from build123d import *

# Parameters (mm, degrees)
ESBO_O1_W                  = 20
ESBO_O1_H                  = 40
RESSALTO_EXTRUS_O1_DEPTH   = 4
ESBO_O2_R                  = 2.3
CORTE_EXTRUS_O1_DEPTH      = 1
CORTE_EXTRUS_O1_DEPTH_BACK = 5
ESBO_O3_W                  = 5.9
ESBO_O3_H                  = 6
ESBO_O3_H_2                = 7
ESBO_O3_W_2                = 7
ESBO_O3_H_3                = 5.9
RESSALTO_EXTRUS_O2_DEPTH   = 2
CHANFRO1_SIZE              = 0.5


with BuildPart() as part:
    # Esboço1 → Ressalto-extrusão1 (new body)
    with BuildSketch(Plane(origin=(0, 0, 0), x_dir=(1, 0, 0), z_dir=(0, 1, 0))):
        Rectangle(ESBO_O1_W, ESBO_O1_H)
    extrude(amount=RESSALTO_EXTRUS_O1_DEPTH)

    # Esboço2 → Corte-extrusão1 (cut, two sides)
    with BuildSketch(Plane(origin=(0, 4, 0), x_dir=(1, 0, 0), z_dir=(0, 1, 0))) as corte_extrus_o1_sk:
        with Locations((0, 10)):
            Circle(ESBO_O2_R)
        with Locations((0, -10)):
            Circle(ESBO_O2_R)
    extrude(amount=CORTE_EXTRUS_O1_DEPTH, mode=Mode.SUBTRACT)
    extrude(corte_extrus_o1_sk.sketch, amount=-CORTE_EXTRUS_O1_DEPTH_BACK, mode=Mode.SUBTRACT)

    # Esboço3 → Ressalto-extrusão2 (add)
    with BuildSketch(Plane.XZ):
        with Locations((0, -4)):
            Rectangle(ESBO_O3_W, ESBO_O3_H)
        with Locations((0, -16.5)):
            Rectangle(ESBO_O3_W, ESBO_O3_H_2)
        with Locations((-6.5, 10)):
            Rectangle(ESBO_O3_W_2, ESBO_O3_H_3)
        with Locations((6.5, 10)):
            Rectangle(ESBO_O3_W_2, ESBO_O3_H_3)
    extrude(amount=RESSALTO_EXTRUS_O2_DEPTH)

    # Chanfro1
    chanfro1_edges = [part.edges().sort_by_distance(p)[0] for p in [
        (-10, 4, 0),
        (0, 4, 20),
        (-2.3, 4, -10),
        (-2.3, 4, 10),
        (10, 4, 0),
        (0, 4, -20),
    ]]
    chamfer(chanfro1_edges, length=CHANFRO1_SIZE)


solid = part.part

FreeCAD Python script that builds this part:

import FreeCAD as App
import Part
import Sketcher
Q = App.Units.Quantity


def edges_at(feature, points):
    """Names of the edges that pass closest to the given points."""
    edges = feature.Shape.Edges
    near = lambda p: min(range(len(edges)), key=lambda i: edges[i].distToShape(Part.Vertex(*p))[0])
    return sorted({f"Edge{near(p) + 1}" for p in points})


def add_polygon(sketch, points):
    """Adds a closed chain of lines whose ends are joined by coincident constraints."""
    first, n = sketch.GeometryCount, len(points)
    for a, b in zip(points, points[1:] + points[:1]):
        sketch.addGeometry(Part.LineSegment(App.Vector(*a, 0), App.Vector(*b, 0)), False)
    for i in range(n):
        sketch.addConstraint(Sketcher.Constraint("Coincident", first + i, 2, first + (i + 1) % n, 1))

doc = App.newDocument("Part")
body = doc.addObject("PartDesign::Body", "Body")

# Sketch on XZ plane
sketch1 = body.newObject("Sketcher::SketchObject", "Sketch")
sketch1.AttachmentSupport = (doc.getObject("XZ_Plane"), [""])
sketch1.MapMode = "FlatFace"
add_polygon(sketch1, [(-10, -20), (-10, 20), (10, 20), (10, -20)])  # lines 0-3
sketch1.addConstraint([
    Sketcher.Constraint("Vertical", 0),
    Sketcher.Constraint("Horizontal", 1),
    Sketcher.Constraint("Vertical", 2),
    Sketcher.Constraint("Horizontal", 3),
    Sketcher.Constraint("Symmetric", 0, 2, 2, 2, -1, 1),
    Sketcher.Constraint("DistanceX", 1, 1, 1, 2, Q("20 mm")),
    Sketcher.Constraint("DistanceY", 0, 1, 0, 2, Q("40 mm")),
])
pad1 = body.newObject("PartDesign::Pad", "Pad")
pad1.Profile = sketch1
pad1.Length = 4
pad1.Reversed = True

# Sketch on XZ plane
sketch2 = body.newObject("Sketcher::SketchObject", "Sketch001")
sketch2.AttachmentSupport = (doc.getObject("XZ_Plane"), [""])
sketch2.MapMode = "FlatFace"
sketch2.AttachmentOffset = App.Placement(App.Vector(0, 0, -4), App.Rotation())
sketch2.addGeometry([
    Part.Circle(App.Vector(0, -10, 0), App.Vector(0, 0, 1), 2.3),
    Part.Circle(App.Vector(0, 10, 0), App.Vector(0, 0, 1), 2.3),
], False)
sketch2.addConstraint([
    Sketcher.Constraint("Equal", 0, 1),
    Sketcher.Constraint("Symmetric", 0, 3, 1, 3, -1, 1),
    Sketcher.Constraint("PointOnObject", 0, 3, -2),
    Sketcher.Constraint("Diameter", 0, Q("4.6 mm")),
    Sketcher.Constraint("DistanceY", 0, 3, -1, 1, Q("10 mm")),
])
pocket1 = body.newObject("PartDesign::Pocket", "Pocket")
pocket1.Profile = sketch2
pocket1.Type = "ThroughAll"
pocket1.Midplane = True

# Sketch on XZ plane
sketch3 = body.newObject("Sketcher::SketchObject", "Sketch002")
sketch3.AttachmentSupport = (doc.getObject("XZ_Plane"), [""])
sketch3.MapMode = "FlatFace"
add_polygon(sketch3, [(-3, -1), (-3, -7), (3, -7), (3, -1)])  # lines 0-3
add_polygon(sketch3, [(-3, -13), (-3, -20), (3, -20), (3, -13)])  # lines 4-7
add_polygon(sketch3, [(-10, 13), (-10, 7), (-3, 7), (-3, 13)])  # lines 8-11
add_polygon(sketch3, [(3, 13), (3, 7), (10, 7), (10, 13)])  # lines 12-15
sketch3.addConstraint([
    Sketcher.Constraint("Vertical", 0),
    Sketcher.Constraint("Horizontal", 1),
    Sketcher.Constraint("Vertical", 2),
    Sketcher.Constraint("Horizontal", 3),
    Sketcher.Constraint("Vertical", 4),
    Sketcher.Constraint("Horizontal", 5),
    Sketcher.Constraint("Vertical", 6),
    Sketcher.Constraint("Horizontal", 7),
    Sketcher.Constraint("Vertical", 8),
    Sketcher.Constraint("Horizontal", 9),
    Sketcher.Constraint("Vertical", 10),
    Sketcher.Constraint("Horizontal", 11),
    Sketcher.Constraint("Vertical", 12),
    Sketcher.Constraint("Horizontal", 13),
    Sketcher.Constraint("Vertical", 14),
    Sketcher.Constraint("Horizontal", 15),
    Sketcher.Constraint("Symmetric", 9, 2, 12, 2, -2),
    Sketcher.Constraint("Symmetric", 11, 2, 14, 2, -2),
    Sketcher.Constraint("Vertical", 3, 2, 4, 2),
    Sketcher.Constraint("Vertical", 2, 2, 5, 2),
    Sketcher.Constraint("Equal", 15, 4),
    Sketcher.Constraint("Equal", 7, 8),
    Sketcher.Constraint("DistanceX", 9, 1, 9, 2, Q("7 mm")),
    Sketcher.Constraint("DistanceY", 0, 2, 0, 1, Q("6 mm")),
    Sketcher.Constraint("DistanceX", 1, 1, 1, 2, Q("5.9 mm")),
    Sketcher.Constraint("DistanceY", 0, 2, -1, 1, Q("7 mm")),
    Sketcher.Constraint("DistanceY", 4, 2, -1, 1, Q("20 mm")),
    Sketcher.Constraint("DistanceX", 8, 2, -1, 1, Q("10 mm")),
    Sketcher.Constraint("DistanceX", 0, 2, -1, 1, Q("2.95 mm")),
    Sketcher.Constraint("DistanceY", -1, 1, 8, 2, Q("7.05 mm")),
])
pad2 = body.newObject("PartDesign::Pad", "Pad001")
pad2.Profile = sketch3
pad2.Length = 2
doc.recompute()

chamfer = body.newObject("PartDesign::Chamfer", "Chamfer")
chamfer.Base = (pad2, edges_at(pad2, [
    (-10, 4, 0),
    (0, 4, 20),
    (-2.3, 4, -10),
    (-2.3, 4, 10),
    (10, 4, 0),
    (0, 4, -20),
]))
chamfer.Size = 0.5

doc.recompute()
